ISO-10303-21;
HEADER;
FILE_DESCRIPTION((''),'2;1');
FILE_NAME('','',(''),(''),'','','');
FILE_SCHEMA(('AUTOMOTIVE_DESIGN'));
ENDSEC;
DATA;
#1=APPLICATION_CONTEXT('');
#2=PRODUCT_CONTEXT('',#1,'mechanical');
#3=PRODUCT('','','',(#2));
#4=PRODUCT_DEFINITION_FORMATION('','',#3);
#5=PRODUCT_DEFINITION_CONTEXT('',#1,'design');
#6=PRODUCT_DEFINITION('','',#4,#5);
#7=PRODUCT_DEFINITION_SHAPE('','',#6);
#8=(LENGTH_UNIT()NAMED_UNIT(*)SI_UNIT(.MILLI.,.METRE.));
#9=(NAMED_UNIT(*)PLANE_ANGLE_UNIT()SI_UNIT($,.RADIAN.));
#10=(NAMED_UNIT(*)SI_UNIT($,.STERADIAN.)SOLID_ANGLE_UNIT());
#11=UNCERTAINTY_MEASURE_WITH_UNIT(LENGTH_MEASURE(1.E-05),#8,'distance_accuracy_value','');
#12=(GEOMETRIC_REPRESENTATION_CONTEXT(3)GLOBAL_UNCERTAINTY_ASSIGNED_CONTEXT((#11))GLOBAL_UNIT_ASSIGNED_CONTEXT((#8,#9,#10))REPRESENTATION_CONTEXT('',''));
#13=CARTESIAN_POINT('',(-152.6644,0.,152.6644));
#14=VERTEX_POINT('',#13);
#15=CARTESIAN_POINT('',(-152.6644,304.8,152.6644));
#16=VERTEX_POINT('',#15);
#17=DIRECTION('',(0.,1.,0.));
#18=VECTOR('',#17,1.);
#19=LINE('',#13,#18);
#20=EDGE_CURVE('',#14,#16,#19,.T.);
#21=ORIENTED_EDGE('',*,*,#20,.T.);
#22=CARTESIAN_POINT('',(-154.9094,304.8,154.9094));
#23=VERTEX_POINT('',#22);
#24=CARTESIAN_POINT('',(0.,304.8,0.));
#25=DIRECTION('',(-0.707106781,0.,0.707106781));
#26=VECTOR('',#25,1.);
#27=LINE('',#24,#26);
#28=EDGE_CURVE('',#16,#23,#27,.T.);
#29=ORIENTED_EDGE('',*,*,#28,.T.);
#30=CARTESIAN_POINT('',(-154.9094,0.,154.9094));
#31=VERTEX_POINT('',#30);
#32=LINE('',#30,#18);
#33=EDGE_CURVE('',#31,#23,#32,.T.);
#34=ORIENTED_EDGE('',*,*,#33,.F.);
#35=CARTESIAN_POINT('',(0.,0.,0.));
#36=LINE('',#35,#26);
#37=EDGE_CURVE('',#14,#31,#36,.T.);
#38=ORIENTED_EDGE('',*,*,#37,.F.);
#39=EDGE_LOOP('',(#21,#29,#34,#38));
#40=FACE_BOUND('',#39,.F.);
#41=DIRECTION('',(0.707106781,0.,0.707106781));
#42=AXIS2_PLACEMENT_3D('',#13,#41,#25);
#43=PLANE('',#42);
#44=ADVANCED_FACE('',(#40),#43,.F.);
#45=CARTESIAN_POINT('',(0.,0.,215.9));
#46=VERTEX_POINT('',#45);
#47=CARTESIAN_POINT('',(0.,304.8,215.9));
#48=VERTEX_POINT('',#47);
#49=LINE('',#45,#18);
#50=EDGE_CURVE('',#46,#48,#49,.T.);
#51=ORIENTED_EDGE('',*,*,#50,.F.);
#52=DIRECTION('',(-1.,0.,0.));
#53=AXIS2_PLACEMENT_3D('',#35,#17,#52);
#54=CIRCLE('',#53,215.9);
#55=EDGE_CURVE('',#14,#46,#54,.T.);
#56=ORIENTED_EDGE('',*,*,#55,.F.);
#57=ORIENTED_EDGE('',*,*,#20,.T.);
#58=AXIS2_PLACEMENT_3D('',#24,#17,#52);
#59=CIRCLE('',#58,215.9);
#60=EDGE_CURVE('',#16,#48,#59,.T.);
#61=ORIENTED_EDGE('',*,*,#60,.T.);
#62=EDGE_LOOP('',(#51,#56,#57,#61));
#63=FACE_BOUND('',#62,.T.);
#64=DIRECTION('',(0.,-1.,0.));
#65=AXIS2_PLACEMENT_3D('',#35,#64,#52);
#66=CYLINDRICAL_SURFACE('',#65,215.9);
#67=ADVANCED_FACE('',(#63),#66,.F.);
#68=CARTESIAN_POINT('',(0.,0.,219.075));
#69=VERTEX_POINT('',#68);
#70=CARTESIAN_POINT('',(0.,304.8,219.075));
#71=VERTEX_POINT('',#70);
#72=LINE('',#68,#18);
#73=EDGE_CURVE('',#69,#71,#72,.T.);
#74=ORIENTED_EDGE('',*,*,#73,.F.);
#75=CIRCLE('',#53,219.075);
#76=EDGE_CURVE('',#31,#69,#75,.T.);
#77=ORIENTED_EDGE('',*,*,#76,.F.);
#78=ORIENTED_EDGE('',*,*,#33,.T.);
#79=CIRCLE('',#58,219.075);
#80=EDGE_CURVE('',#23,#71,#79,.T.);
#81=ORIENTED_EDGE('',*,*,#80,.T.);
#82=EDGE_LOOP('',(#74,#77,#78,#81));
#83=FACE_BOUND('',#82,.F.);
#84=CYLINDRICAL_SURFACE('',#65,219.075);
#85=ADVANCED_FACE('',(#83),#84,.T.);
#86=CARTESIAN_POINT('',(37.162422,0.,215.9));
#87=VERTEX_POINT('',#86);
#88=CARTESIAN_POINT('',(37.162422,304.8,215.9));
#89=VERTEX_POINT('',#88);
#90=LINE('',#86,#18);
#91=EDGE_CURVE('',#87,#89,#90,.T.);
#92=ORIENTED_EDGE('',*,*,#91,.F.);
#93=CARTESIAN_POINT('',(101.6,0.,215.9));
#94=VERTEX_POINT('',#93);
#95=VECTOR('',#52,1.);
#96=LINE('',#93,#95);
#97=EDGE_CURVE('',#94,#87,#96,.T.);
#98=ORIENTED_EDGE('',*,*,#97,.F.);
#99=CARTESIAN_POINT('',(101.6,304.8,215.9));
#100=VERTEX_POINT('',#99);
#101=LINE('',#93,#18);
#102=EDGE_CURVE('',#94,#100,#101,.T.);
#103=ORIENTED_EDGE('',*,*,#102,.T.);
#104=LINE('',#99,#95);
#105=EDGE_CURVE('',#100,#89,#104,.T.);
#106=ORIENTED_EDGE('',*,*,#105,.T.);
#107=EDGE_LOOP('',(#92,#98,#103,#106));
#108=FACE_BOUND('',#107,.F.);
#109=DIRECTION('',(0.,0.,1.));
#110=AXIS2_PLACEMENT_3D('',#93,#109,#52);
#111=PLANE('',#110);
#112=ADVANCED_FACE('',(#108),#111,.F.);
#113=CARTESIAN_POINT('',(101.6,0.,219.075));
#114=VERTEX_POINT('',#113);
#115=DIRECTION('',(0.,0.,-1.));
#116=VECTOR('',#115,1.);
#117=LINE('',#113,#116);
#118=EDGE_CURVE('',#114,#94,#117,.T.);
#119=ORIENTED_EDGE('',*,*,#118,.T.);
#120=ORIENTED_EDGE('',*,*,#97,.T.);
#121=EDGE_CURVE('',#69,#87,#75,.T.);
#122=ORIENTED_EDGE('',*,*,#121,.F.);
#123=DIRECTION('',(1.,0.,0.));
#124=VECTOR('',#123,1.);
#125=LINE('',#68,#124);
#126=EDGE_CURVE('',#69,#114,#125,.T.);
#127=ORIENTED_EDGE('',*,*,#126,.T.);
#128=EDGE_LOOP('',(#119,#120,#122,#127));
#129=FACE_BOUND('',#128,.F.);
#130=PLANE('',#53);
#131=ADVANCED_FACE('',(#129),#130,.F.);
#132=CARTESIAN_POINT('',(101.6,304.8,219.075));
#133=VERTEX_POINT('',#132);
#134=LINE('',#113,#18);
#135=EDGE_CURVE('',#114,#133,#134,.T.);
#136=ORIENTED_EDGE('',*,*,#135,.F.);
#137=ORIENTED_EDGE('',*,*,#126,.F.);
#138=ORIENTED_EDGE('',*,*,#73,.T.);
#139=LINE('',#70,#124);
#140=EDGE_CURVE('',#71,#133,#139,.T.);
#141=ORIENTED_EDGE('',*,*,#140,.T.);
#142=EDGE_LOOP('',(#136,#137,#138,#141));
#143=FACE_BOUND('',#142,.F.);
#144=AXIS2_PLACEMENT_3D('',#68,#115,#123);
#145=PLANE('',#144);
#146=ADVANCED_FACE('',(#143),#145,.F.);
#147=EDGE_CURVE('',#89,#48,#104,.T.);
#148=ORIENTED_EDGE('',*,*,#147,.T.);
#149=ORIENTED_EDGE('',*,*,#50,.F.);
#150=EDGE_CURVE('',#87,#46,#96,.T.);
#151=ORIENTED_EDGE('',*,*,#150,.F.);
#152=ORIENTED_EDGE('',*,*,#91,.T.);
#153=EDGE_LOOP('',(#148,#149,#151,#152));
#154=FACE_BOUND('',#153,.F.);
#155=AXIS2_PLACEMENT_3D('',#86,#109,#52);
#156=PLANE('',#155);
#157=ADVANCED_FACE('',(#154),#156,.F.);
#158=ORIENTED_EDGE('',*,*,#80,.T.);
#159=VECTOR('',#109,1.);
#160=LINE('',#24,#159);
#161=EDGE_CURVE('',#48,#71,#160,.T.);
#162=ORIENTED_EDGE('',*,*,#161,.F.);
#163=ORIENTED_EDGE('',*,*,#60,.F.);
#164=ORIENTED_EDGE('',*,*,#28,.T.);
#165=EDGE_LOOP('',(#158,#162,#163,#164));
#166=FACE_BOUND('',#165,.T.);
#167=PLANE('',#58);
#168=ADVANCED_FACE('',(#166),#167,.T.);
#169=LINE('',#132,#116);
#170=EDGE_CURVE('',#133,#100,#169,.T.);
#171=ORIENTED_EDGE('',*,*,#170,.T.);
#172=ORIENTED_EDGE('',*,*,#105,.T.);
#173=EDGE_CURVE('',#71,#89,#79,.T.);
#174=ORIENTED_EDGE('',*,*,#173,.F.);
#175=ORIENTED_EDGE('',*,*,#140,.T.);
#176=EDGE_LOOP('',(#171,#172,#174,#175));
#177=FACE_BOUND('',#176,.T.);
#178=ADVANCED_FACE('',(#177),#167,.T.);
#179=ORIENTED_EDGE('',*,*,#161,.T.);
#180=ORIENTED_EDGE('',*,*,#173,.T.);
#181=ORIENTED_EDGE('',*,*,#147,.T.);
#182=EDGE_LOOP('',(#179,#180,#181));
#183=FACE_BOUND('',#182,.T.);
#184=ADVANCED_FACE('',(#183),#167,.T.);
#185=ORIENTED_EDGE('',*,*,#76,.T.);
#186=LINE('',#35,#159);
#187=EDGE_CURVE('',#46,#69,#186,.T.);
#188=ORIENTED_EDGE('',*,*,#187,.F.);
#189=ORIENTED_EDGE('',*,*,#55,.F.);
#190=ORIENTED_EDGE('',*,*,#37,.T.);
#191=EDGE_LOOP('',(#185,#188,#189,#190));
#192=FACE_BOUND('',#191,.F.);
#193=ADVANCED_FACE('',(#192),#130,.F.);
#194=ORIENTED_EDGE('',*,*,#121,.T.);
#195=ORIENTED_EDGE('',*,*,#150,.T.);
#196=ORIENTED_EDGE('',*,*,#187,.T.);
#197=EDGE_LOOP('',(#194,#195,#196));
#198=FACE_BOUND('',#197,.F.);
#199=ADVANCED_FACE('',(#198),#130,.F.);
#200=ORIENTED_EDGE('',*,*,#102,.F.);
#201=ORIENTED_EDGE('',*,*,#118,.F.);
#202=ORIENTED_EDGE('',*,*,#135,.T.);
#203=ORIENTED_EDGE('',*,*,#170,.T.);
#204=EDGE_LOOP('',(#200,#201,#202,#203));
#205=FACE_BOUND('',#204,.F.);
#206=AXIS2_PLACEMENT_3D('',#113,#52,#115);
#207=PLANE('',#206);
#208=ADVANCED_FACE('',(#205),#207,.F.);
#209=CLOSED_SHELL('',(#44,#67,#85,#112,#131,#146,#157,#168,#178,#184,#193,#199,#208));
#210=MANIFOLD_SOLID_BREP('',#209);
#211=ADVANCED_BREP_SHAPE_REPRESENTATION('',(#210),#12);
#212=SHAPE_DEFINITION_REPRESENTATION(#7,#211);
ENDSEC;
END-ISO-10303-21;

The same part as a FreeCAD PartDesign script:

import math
import FreeCAD as App
import Part
import Sketcher

V = App.Vector
Q = App.Units.Quantity

doc = App.newDocument("Part")
body = doc.addObject("PartDesign::Body", "Body")

# Sketch on XZ plane
sketch1 = doc.addObject("Sketcher::SketchObject", "Sketch")
body.addObject(sketch1)
sketch1.AttachmentSupport = (doc.XZ_Plane, [""])
sketch1.MapMode = "FlatFace"
sketch1.addGeometry([
    Part.ArcOfCircle(Part.Circle(V(0, 0, 0), V(0, 0, 1), 215.9), math.radians(90), math.radians(135)),  # 0
    Part.LineSegment(V(-152.6644, 152.6644, 0), V(-154.9094, 154.9094, 0)),  # 1
    Part.ArcOfCircle(Part.Circle(V(0, 0, 0), V(0, 0, 1), 219.075), math.radians(90), math.radians(135)),  # 2
    Part.LineSegment(V(0, 219.075, 0), V(101.6, 219.075, 0)),  # 3
    Part.LineSegment(V(101.6, 219.075, 0), V(101.6, 215.9, 0)),  # 4
    Part.LineSegment(V(101.6, 215.9, 0), V(0, 215.9, 0)),  # 5
], False)
sketch1.addConstraint([
    Sketcher.Constraint("Coincident", 0, 2, 1, 1),
    Sketcher.Constraint("Coincident", 1, 2, 2, 2),
    Sketcher.Constraint("Tangent", 2, 1, 3, 1),
    Sketcher.Constraint("Coincident", 3, 2, 4, 1),
    Sketcher.Constraint("Coincident", 4, 2, 5, 1),
    Sketcher.Constraint("Tangent", 5, 2, 0, 1),
    Sketcher.Constraint("Horizontal", 3),
    Sketcher.Constraint("Vertical", 4),
    Sketcher.Constraint("Horizontal", 5),
    Sketcher.Constraint("Coincident", 0, 3, -1, 1),
    Sketcher.Constraint("Coincident", 2, 3, -1, 1),
    Sketcher.Constraint("Radius", 0, Q("8.5 in")),
    Sketcher.Constraint("DistanceX", 3, 1, 3, 2, Q("4 in")),
    Sketcher.Constraint("DistanceY", 4, 2, 4, 1, Q("0.125 in")),
    Sketcher.Constraint("Angle", 1, Q("135 deg")),
    Sketcher.Constraint("DistanceX", 0, 2, -1, 1, Q("6.0104 in")),
])
pad1 = doc.addObject("PartDesign::Pad", "Pad")
body.addObject(pad1)
pad1.Profile = sketch1
pad1.Length = Q("12 in")
pad1.Reversed = True

doc.recompute()
